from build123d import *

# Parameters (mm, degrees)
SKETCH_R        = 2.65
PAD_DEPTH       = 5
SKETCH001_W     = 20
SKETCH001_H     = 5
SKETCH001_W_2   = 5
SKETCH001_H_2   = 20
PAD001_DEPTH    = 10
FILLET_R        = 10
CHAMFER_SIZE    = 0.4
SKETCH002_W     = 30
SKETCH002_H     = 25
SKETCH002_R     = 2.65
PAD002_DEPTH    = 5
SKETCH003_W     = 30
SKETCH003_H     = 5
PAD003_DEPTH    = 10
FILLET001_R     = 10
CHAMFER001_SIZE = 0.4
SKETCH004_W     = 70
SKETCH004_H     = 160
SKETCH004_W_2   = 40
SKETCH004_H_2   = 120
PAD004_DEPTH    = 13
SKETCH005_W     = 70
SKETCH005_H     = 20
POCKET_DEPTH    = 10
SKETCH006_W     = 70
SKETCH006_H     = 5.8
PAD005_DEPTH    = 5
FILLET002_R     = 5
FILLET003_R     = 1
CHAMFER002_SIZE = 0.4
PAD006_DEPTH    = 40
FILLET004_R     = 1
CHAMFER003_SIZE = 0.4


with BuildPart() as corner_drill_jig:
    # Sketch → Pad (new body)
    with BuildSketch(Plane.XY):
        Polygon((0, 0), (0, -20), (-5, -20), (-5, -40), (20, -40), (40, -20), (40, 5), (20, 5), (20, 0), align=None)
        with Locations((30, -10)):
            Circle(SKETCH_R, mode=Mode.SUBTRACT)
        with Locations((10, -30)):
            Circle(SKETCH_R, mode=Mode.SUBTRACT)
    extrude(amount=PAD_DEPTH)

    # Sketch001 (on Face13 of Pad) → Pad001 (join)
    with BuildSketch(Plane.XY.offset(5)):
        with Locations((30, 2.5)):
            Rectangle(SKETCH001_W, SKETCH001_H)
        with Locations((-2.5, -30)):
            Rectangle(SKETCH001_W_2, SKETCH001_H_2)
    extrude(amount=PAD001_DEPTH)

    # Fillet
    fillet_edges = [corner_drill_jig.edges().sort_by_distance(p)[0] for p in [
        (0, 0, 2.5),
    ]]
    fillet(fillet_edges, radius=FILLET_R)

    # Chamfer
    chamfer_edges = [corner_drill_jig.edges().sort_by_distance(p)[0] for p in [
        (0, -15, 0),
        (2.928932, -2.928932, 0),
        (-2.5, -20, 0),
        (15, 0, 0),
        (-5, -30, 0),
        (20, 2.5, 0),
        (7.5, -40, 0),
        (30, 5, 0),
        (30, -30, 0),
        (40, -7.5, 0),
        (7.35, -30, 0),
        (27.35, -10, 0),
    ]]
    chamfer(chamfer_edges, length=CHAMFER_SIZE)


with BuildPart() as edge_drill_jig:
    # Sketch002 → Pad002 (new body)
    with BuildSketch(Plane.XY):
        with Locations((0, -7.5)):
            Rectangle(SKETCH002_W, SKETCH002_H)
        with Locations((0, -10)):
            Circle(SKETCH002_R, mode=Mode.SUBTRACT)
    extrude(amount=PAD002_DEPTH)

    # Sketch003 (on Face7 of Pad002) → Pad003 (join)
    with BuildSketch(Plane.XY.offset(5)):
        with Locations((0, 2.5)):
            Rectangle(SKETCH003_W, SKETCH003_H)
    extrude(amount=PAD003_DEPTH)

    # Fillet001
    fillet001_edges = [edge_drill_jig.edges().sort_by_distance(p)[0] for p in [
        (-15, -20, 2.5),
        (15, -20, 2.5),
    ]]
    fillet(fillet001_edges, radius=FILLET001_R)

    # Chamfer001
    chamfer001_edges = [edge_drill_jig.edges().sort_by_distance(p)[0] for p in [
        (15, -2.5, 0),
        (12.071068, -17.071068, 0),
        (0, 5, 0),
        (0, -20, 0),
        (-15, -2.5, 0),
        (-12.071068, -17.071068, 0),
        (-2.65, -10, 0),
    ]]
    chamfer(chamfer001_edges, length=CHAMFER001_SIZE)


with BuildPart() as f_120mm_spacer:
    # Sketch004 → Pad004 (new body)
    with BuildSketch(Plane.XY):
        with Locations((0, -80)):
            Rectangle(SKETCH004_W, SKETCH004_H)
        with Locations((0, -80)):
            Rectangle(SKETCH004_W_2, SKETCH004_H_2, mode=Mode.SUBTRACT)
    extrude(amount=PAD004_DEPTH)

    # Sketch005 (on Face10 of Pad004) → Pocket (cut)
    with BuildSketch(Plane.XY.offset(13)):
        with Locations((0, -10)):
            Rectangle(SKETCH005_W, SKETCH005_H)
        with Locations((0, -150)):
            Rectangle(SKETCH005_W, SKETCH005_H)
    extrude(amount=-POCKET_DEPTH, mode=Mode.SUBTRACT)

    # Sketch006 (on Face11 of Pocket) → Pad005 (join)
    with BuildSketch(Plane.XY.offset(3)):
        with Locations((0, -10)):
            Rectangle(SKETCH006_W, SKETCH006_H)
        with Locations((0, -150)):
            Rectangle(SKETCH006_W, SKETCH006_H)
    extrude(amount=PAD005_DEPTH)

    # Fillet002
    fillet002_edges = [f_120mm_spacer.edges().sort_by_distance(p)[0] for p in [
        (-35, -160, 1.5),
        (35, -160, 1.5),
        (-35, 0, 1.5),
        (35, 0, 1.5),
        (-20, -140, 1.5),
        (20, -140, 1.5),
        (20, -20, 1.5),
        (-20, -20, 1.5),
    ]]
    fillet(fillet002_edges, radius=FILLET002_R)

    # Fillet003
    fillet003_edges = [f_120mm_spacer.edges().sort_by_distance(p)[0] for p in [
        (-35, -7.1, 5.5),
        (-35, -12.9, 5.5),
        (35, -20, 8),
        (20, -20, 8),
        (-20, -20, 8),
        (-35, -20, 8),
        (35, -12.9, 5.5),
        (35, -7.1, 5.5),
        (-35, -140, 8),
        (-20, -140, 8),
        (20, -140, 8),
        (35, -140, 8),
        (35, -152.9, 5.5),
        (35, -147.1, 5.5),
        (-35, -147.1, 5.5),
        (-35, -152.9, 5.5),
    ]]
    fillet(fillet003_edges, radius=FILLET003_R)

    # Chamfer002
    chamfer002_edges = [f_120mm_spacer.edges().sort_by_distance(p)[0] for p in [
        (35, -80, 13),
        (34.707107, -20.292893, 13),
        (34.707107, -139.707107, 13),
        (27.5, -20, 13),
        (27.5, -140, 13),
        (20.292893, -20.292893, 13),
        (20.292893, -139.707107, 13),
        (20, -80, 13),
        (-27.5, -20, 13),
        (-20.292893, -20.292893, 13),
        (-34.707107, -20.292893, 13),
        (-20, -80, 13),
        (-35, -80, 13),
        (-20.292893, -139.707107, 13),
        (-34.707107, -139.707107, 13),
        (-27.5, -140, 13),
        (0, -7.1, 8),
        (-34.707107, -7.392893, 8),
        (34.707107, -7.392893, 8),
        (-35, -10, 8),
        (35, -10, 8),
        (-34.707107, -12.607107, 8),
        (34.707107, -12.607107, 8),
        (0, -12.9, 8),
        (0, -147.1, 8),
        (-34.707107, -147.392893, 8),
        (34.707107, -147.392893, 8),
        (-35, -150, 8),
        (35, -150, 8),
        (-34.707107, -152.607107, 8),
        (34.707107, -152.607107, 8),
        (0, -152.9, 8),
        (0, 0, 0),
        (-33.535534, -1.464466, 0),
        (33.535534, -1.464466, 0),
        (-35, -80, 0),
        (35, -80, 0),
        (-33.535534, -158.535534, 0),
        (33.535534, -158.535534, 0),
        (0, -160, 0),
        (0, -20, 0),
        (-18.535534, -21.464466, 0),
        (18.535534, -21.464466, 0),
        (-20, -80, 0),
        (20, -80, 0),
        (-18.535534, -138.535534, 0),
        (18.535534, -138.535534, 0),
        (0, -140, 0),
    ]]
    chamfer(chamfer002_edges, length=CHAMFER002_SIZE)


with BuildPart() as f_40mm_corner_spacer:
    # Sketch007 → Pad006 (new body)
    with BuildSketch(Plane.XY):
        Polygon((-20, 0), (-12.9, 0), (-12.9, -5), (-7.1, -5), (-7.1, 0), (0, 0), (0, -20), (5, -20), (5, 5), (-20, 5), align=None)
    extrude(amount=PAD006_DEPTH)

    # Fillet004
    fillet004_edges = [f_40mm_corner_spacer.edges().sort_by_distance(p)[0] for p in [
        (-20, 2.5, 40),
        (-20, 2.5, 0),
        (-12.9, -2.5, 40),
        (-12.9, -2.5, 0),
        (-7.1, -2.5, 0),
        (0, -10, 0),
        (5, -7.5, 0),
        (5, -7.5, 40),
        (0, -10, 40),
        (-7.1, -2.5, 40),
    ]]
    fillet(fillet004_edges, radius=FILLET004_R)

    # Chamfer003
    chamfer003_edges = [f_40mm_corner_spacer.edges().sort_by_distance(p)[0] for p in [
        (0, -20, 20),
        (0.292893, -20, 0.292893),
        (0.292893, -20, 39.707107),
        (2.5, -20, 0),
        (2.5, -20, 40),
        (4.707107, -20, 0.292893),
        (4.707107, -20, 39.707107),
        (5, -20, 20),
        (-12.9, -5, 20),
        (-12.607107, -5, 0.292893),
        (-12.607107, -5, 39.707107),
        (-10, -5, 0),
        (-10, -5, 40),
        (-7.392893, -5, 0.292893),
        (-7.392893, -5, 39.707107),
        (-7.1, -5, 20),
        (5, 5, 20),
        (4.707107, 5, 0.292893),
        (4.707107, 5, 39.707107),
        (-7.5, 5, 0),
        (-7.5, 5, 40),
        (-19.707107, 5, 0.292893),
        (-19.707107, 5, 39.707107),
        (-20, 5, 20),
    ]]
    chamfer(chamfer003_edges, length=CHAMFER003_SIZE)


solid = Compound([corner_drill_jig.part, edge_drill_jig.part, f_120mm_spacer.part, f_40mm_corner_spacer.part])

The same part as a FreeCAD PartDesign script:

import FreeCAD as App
import Part
import Sketcher
from FreeCAD import Vector


def edges_at(feature, points):
    """Names of the edges that pass closest to the given points."""
    edges = feature.Shape.Edges
    near = lambda p: min(range(len(edges)), key=lambda i: edges[i].distToShape(Part.Vertex(*p))[0])
    return sorted({f"Edge{near(p) + 1}" for p in points})


def add_polygon(sketch, points):
    """Adds a closed chain of lines whose ends are joined by coincident constraints."""
    first, n = sketch.GeometryCount, len(points)
    for a, b in zip(points, points[1:] + points[:1]):
        sketch.addGeometry(Part.LineSegment(App.Vector(*a, 0), App.Vector(*b, 0)), False)
    for i in range(n):
        sketch.addConstraint(Sketcher.Constraint("Coincident", first + i, 2, first + (i + 1) % n, 1))

doc = App.newDocument("Part")
body = doc.addObject("PartDesign::Body", "Body")

# Sketch on XY plane
sketch1 = body.newObject("Sketcher::SketchObject", "Sketch")
sketch1.AttachmentSupport = (doc.getObject("XY_Plane"), [""])
sketch1.MapMode = "FlatFace"
add_polygon(sketch1, [(0, 0), (0, -20), (-5, -20), (-5, -40), (20, -40), (40, -20), (40, 5), (20, 5), (20, 0)])  # lines 0-8
sketch1.addGeometry(Part.Circle(Vector(10, -30, 0), Vector(0, 0, 1), 2.65), False)  # 9
sketch1.addGeometry(Part.Circle(Vector(30, -10, 0), Vector(0, 0, 1), 2.65), False)  # 10
sketch1.addConstraint(Sketcher.Constraint("Vertical", 0))
sketch1.addConstraint(Sketcher.Constraint("Horizontal", 1))
sketch1.addConstraint(Sketcher.Constraint("Vertical", 2))
sketch1.addConstraint(Sketcher.Constraint("Horizontal", 3))
sketch1.addConstraint(Sketcher.Constraint("Vertical", 5))
sketch1.addConstraint(Sketcher.Constraint("Horizontal", 6))
sketch1.addConstraint(Sketcher.Constraint("Vertical", 7))
sketch1.addConstraint(Sketcher.Constraint("Horizontal", 8))
sketch1.addConstraint(Sketcher.Constraint("Coincident", 8, 2, -1, 1))
sketch1.addConstraint(Sketcher.Constraint("Equal", 9, 10))
sketch1.addConstraint(Sketcher.Constraint("Horizontal", 1, 2, 4, 2))
sketch1.addConstraint(Sketcher.Constraint("Vertical", 3, 2, 6, 2))
sketch1.addConstraint(Sketcher.Constraint("Equal", 6, 8))
sketch1.addConstraint(Sketcher.Constraint("Equal", 8, 0))
sketch1.addConstraint(Sketcher.Constraint("Equal", 0, 2))
sketch1.addConstraint(Sketcher.Constraint("Equal", 3, 5))
sketch1.addConstraint(Sketcher.Constraint("Diameter", 9, 5.3))
sketch1.addConstraint(Sketcher.Constraint("DistanceX", 1, 2, 1, 1, 5.0))
sketch1.addConstraint(Sketcher.Constraint("DistanceX", 3, 1, 3, 2, 25.0))
sketch1.addConstraint(Sketcher.Constraint("DistanceX", -1, 1, 9, 3, 10.0))
sketch1.addConstraint(Sketcher.Constraint("DistanceY", 9, 3, -1, 1, 30.0))
sketch1.addConstraint(Sketcher.Constraint("DistanceX", -1, 1, 10, 3, 30.0))
sketch1.addConstraint(Sketcher.Constraint("DistanceY", 10, 3, -1, 1, 10.0))
pad1 = body.newObject("PartDesign::Pad", "Pad")
pad1.Profile = sketch1
pad1.Length = 5

# Sketch on XY plane
sketch2 = body.newObject("Sketcher::SketchObject", "Sketch001")
sketch2.AttachmentSupport = (doc.getObject("XY_Plane"), [""])
sketch2.MapMode = "FlatFace"
sketch2.AttachmentOffset = App.Placement(Vector(0, 0, 5), App.Rotation())
add_polygon(sketch2, [(20, 5), (20, 0), (40, 0), (40, 5)])  # lines 0-3
add_polygon(sketch2, [(-5, -20), (-5, -40), (0, -40), (0, -20)])  # lines 4-7
sketch2.addConstraint(Sketcher.Constraint("Vertical", 0))
sketch2.addConstraint(Sketcher.Constraint("Horizontal", 1))
sketch2.addConstraint(Sketcher.Constraint("Vertical", 2))
sketch2.addConstraint(Sketcher.Constraint("Horizontal", 3))
sketch2.addConstraint(Sketcher.Constraint("Vertical", 4))
sketch2.addConstraint(Sketcher.Constraint("Horizontal", 5))
sketch2.addConstraint(Sketcher.Constraint("Vertical", 6))
sketch2.addConstraint(Sketcher.Constraint("Horizontal", 7))
sketch2.addConstraint(Sketcher.Constraint("PointOnObject", 0, 2, -1))
sketch2.addConstraint(Sketcher.Constraint("PointOnObject", 5, 2, -2))
sketch2.addConstraint(Sketcher.Constraint("Equal", 7, 0))
sketch2.addConstraint(Sketcher.Constraint("Equal", 3, 4))
sketch2.addConstraint(Sketcher.Constraint("DistanceX", 1, 1, 1, 2, 20.0))
sketch2.addConstraint(Sketcher.Constraint("DistanceX", 5, 1, 5, 2, 5.0))
sketch2.addConstraint(Sketcher.Constraint("DistanceX", -1, 1, 0, 2, 20.0))
sketch2.addConstraint(Sketcher.Constraint("DistanceY", 4, 2, -1, 1, 40.0))
pad2 = body.newObject("PartDesign::Pad", "Pad001")
pad2.Profile = sketch2
pad2.Length = 10
doc.recompute()

fillet = body.newObject("PartDesign::Fillet", "Fillet")
fillet.Base = (pad2, edges_at(pad2, [(0, 0, 2.5)]))
fillet.Radius = 10
doc.recompute()

chamfer = body.newObject("PartDesign::Chamfer", "Chamfer")
chamfer.Base = (fillet, edges_at(fillet, [
    (0, -15, 0),
    (2.929, -2.929, 0),
    (-2.5, -20, 0),
    (15, 0, 0),
    (-5, -30, 0),
    (20, 2.5, 0),
    (7.5, -40, 0),
    (30, 5, 0),
    (30, -30, 0),
    (40, -7.5, 0),
    (7.35, -30, 0),
    (27.35, -10, 0),
]))
chamfer.Size = 0.4
body2 = doc.addObject("PartDesign::Body", "Body001")

# Sketch on XY plane
sketch3 = body2.newObject("Sketcher::SketchObject", "Sketch002")
sketch3.AttachmentSupport = (doc.getObject("XY_Plane001"), [""])
sketch3.MapMode = "FlatFace"
add_polygon(sketch3, [(-15, 5), (-15, -20), (15, -20), (15, 5)])  # lines 0-3
sketch3.addGeometry(Part.Circle(Vector(0, -10, 0), Vector(0, 0, 1), 2.65), False)  # 4
sketch3.addConstraint(Sketcher.Constraint("Vertical", 0))
sketch3.addConstraint(Sketcher.Constraint("Horizontal", 1))
sketch3.addConstraint(Sketcher.Constraint("Vertical", 2))
sketch3.addConstraint(Sketcher.Constraint("Horizontal", 3))
sketch3.addConstraint(Sketcher.Constraint("PointOnObject", 4, 3, -2))
sketch3.addConstraint(Sketcher.Constraint("Diameter", 4, 5.3))
sketch3.addConstraint(Sketcher.Constraint("DistanceX", 1, 1, 1, 2, 30.0))
sketch3.addConstraint(Sketcher.Constraint("DistanceY", 0, 2, 0, 1, 25.0))
sketch3.addConstraint(Sketcher.Constraint("DistanceY", 4, 3, -1, 1, 10.0))
sketch3.addConstraint(Sketcher.Constraint("DistanceX", 0, 2, -1, 1, 15.0))
sketch3.addConstraint(Sketcher.Constraint("DistanceY", 0, 2, -1, 1, 20.0))
pad3 = body2.newObject("PartDesign::Pad", "Pad002")
pad3.Profile = sketch3
pad3.Length = 5

# Sketch on XY plane
sketch4 = body2.newObject("Sketcher::SketchObject", "Sketch003")
sketch4.AttachmentSupport = (doc.getObject("XY_Plane001"), [""])
sketch4.MapMode = "FlatFace"
sketch4.AttachmentOffset = App.Placement(Vector(0, 0, 5), App.Rotation())
add_polygon(sketch4, [(-15, 5), (-15, 0), (15, 0), (15, 5)])  # lines 0-3
sketch4.addConstraint(Sketcher.Constraint("Vertical", 0))
sketch4.addConstraint(Sketcher.Constraint("Horizontal", 1))
sketch4.addConstraint(Sketcher.Constraint("Vertical", 2))
sketch4.addConstraint(Sketcher.Constraint("Horizontal", 3))
sketch4.addConstraint(Sketcher.Constraint("Symmetric", 0, 2, 1, 2, -1, 1))
sketch4.addConstraint(Sketcher.Constraint("DistanceX", 1, 1, 1, 2, 30.0))
sketch4.addConstraint(Sketcher.Constraint("DistanceY", 0, 2, 0, 1, 5.0))
pad4 = body2.newObject("PartDesign::Pad", "Pad003")
pad4.Profile = sketch4
pad4.Length = 10
doc.recompute()

fillet2 = body2.newObject("PartDesign::Fillet", "Fillet001")
fillet2.Base = (pad4, edges_at(pad4, [(-15, -20, 2.5), (15, -20, 2.5)]))
fillet2.Radius = 10
doc.recompute()

chamfer2 = body2.newObject("PartDesign::Chamfer", "Chamfer001")
chamfer2.Base = (fillet2, edges_at(fillet2, [
    (15, -2.5, 0),
    (12.071, -17.071, 0),
    (0, 5, 0),
    (0, -20, 0),
    (-15, -2.5, 0),
    (-12.071, -17.071, 0),
    (-2.65, -10, 0),
]))
chamfer2.Size = 0.4
body3 = doc.addObject("PartDesign::Body", "Body002")

# Sketch on XY plane
sketch5 = body3.newObject("Sketcher::SketchObject", "Sketch004")
sketch5.AttachmentSupport = (doc.getObject("XY_Plane002"), [""])
sketch5.MapMode = "FlatFace"
add_polygon(sketch5, [(-35, 0), (-35, -160), (35, -160), (35, 0)])  # lines 0-3
add_polygon(sketch5, [(20, -140), (-20, -140), (-20, -20), (20, -20)])  # lines 4-7
sketch5.addConstraint(Sketcher.Constraint("Vertical", 0))
sketch5.addConstraint(Sketcher.Constraint("Horizontal", 1))
sketch5.addConstraint(Sketcher.Constraint("Vertical", 2))
sketch5.addConstraint(Sketcher.Constraint("Horizontal", 3))
sketch5.addConstraint(Sketcher.Constraint("Horizontal", 4))
sketch5.addConstraint(Sketcher.Constraint("Vertical", 5))
sketch5.addConstraint(Sketcher.Constraint("Horizontal", 6))
sketch5.addConstraint(Sketcher.Constraint("Vertical", 7))
sketch5.addConstraint(Sketcher.Constraint("Symmetric", 2, 2, 3, 2, -1, 1))
sketch5.addConstraint(Sketcher.Constraint("DistanceX", 1, 1, 1, 2, 70.0))
sketch5.addConstraint(Sketcher.Constraint("DistanceX", 4, 2, 4, 1, 40.0))
sketch5.addConstraint(Sketcher.Constraint("DistanceY", 0, 2, 0, 1, 160.0))
sketch5.addConstraint(Sketcher.Constraint("DistanceY", 5, 1, 5, 2, 120.0))
sketch5.addConstraint(Sketcher.Constraint("DistanceX", 4, 2, -1, 1, 20.0))
sketch5.addConstraint(Sketcher.Constraint("DistanceY", 4, 2, -1, 1, 140.0))
pad5 = body3.newObject("PartDesign::Pad", "Pad004")
pad5.Profile = sketch5
pad5.Length = 13

# Sketch on XY plane
sketch6 = body3.newObject("Sketcher::SketchObject", "Sketch005")
sketch6.AttachmentSupport = (doc.getObject("XY_Plane002"), [""])
sketch6.MapMode = "FlatFace"
sketch6.AttachmentOffset = App.Placement(Vector(0, 0, 13), App.Rotation())
add_polygon(sketch6, [(-35, 0), (-35, -20), (35, -20), (35, 0)])  # lines 0-3
add_polygon(sketch6, [(-35, -140), (-35, -160), (35, -160), (35, -140)])  # lines 4-7
sketch6.addConstraint(Sketcher.Constraint("Vertical", 0))
sketch6.addConstraint(Sketcher.Constraint("Horizontal", 1))
sketch6.addConstraint(Sketcher.Constraint("Vertical", 2))
sketch6.addConstraint(Sketcher.Constraint("Horizontal", 3))
sketch6.addConstraint(Sketcher.Constraint("Vertical", 4))
sketch6.addConstraint(Sketcher.Constraint("Horizontal", 5))
sketch6.addConstraint(Sketcher.Constraint("Vertical", 6))
sketch6.addConstraint(Sketcher.Constraint("Horizontal", 7))
sketch6.addConstraint(Sketcher.Constraint("Symmetric", 2, 2, 3, 2, -1, 1))
sketch6.addConstraint(Sketcher.Constraint("Vertical", 3, 2, 4, 2))
sketch6.addConstraint(Sketcher.Constraint("Vertical", 2, 2, 5, 2))
sketch6.addConstraint(Sketcher.Constraint("Equal", 2, 4))
sketch6.addConstraint(Sketcher.Constraint("DistanceX", 1, 1, 1, 2, 70.0))
sketch6.addConstraint(Sketcher.Constraint("DistanceY", 0, 2, 0, 1, 20.0))
sketch6.addConstraint(Sketcher.Constraint("DistanceY", 4, 2, -1, 1, 160.0))
pocket1 = body3.newObject("PartDesign::Pocket", "Pocket")
pocket1.Profile = sketch6
pocket1.Length = 10

# Sketch on XY plane
sketch7 = body3.newObject("Sketcher::SketchObject", "Sketch006")
sketch7.AttachmentSupport = (doc.getObject("XY_Plane002"), [""])
sketch7.MapMode = "FlatFace"
sketch7.AttachmentOffset = App.Placement(Vector(0, 0, 3), App.Rotation())
add_polygon(sketch7, [(-35, -7.1), (-35, -12.9), (35, -12.9), (35, -7.1)])  # lines 0-3
add_polygon(sketch7, [(-35, -147.1), (-35, -152.9), (35, -152.9), (35, -147.1)])  # lines 4-7
sketch7.addConstraint(Sketcher.Constraint("Vertical", 0))
sketch7.addConstraint(Sketcher.Constraint("Horizontal", 1))
sketch7.addConstraint(Sketcher.Constraint("Vertical", 2))
sketch7.addConstraint(Sketcher.Constraint("Horizontal", 3))
sketch7.addConstraint(Sketcher.Constraint("Vertical", 4))
sketch7.addConstraint(Sketcher.Constraint("Horizontal", 5))
sketch7.addConstraint(Sketcher.Constraint("Vertical", 6))
sketch7.addConstraint(Sketcher.Constraint("Horizontal", 7))
sketch7.addConstraint(Sketcher.Constraint("Vertical", 3, 2, 4, 2))
sketch7.addConstraint(Sketcher.Constraint("Vertical", 2, 2, 5, 2))
sketch7.addConstraint(Sketcher.Constraint("Equal", 2, 4))
sketch7.addConstraint(Sketcher.Constraint("DistanceX", 1, 1, 1, 2, 70.0))
sketch7.addConstraint(Sketcher.Constraint("DistanceY", 0, 2, 0, 1, 5.8))
sketch7.addConstraint(Sketcher.Constraint("DistanceX", 0, 2, -1, 1, 35.0))
sketch7.addConstraint(Sketcher.Constraint("DistanceY", 4, 2, 0, 2, 140.0))
sketch7.addConstraint(Sketcher.Constraint("DistanceY", 0, 2, -1, 1, 12.9))
pad6 = body3.newObject("PartDesign::Pad", "Pad005")
pad6.Profile = sketch7
pad6.Length = 5
doc.recompute()

fillet3 = body3.newObject("PartDesign::Fillet", "Fillet002")
fillet3.Base = (pad6, edges_at(pad6, [
    (-35, -160, 1.5),
    (35, -160, 1.5),
    (-35, 0, 1.5),
    (35, 0, 1.5),
    (-20, -140, 1.5),
    (20, -140, 1.5),
    (20, -20, 1.5),
    (-20, -20, 1.5),
]))
fillet3.Radius = 5
doc.recompute()

fillet4 = body3.newObject("PartDesign::Fillet", "Fillet003")
fillet4.Base = (fillet3, edges_at(fillet3, [
    (-35, -7.1, 5.5),
    (-35, -12.9, 5.5),
    (35, -20, 8),
    (20, -20, 8),
    (-20, -20, 8),
    (-35, -20, 8),
    (35, -12.9, 5.5),
    (35, -7.1, 5.5),
    (-35, -140, 8),
    (-20, -140, 8),
    (20, -140, 8),
    (35, -140, 8),
    (35, -152.9, 5.5),
    (35, -147.1, 5.5),
    (-35, -147.1, 5.5),
    (-35, -152.9, 5.5),
]))
fillet4.Radius = 1
doc.recompute()

chamfer3 = body3.newObject("PartDesign::Chamfer", "Chamfer002")
chamfer3.Base = (fillet4, edges_at(fillet4, [
    (35, -80, 13),
    (34.707, -20.293, 13),
    (34.707, -139.707, 13),
    (27.5, -20, 13),
    (27.5, -140, 13),
    (20.293, -20.293, 13),
    (20.293, -139.707, 13),
    (20, -80, 13),
    (-27.5, -20, 13),
    (-20.293, -20.293, 13),
    (-34.707, -20.293, 13),
    (-20, -80, 13),
    (-35, -80, 13),
    (-20.293, -139.707, 13),
    (-34.707, -139.707, 13),
    (-27.5, -140, 13),
    (0, -7.1, 8),
    (-34.707, -7.393, 8),
    (34.707, -7.393, 8),
    (-35, -10, 8),
    (35, -10, 8),
    (-34.707, -12.607, 8),
    (34.707, -12.607, 8),
    (0, -12.9, 8),
    (0, -147.1, 8),
    (-34.707, -147.393, 8),
    (34.707, -147.393, 8),
    (-35, -150, 8),
    (35, -150, 8),
    (-34.707, -152.607, 8),
    (34.707, -152.607, 8),
    (0, -152.9, 8),
    (0, 0, 0),
    (-33.536, -1.464, 0),
    (33.536, -1.464, 0),
    (-35, -80, 0),
    (35, -80, 0),
    (-33.536, -158.536, 0),
    (33.536, -158.536, 0),
    (0, -160, 0),
    (0, -20, 0),
    (-18.536, -21.464, 0),
    (18.536, -21.464, 0),
    (-20, -80, 0),
    (20, -80, 0),
    (-18.536, -138.536, 0),
    (18.536, -138.536, 0),
    (0, -140, 0),
]))
chamfer3.Size = 0.4
body4 = doc.addObject("PartDesign::Body", "Body003")

# Sketch on XY plane
sketch8 = body4.newObject("Sketcher::SketchObject", "Sketch007")
sketch8.AttachmentSupport = (doc.getObject("XY_Plane003"), [""])
sketch8.MapMode = "FlatFace"
add_polygon(sketch8, [(-20, 0), (-12.9, 0), (-12.9, -5), (-7.1, -5), (-7.1, 0), (0, 0), (0, -20), (5, -20), (5, 5), (-20, 5)])  # lines 0-9
sketch8.addConstraint(Sketcher.Constraint("Horizontal", 0))
sketch8.addConstraint(Sketcher.Constraint("Vertical", 1))
sketch8.addConstraint(Sketcher.Constraint("Horizontal", 2))
sketch8.addConstraint(Sketcher.Constraint("Vertical", 3))
sketch8.addConstraint(Sketcher.Constraint("Horizontal", 4))
sketch8.addConstraint(Sketcher.Constraint("Vertical", 5))
sketch8.addConstraint(Sketcher.Constraint("Horizontal", 6))
sketch8.addConstraint(Sketcher.Constraint("Vertical", 7))
sketch8.addConstraint(Sketcher.Constraint("Horizontal", 8))
sketch8.addConstraint(Sketcher.Constraint("Vertical", 9))
sketch8.addConstraint(Sketcher.Constraint("Coincident", 4, 2, -1, 1))
sketch8.addConstraint(Sketcher.Constraint("PointOnObject", 0, 2, -1))
sketch8.addConstraint(Sketcher.Constraint("Equal", 0, 4))
sketch8.addConstraint(Sketcher.Constraint("Equal", 6, 1))
sketch8.addConstraint(Sketcher.Constraint("Equal", 8, 7))
sketch8.addConstraint(Sketcher.Constraint("Equal", 3, 9))
sketch8.addConstraint(Sketcher.Constraint("DistanceX", 6, 1, 6, 2, 5.0))
sketch8.addConstraint(Sketcher.Constraint("DistanceX", 8, 2, 8, 1, 25.0))
sketch8.addConstraint(Sketcher.Constraint("DistanceX", 0, 1, 0, 2, 7.1))
pad7 = body4.newObject("PartDesign::Pad", "Pad006")
pad7.Profile = sketch8
pad7.Length = 40
doc.recompute()

fillet5 = body4.newObject("PartDesign::Fillet", "Fillet004")
fillet5.Base = (pad7, edges_at(pad7, [
    (-20, 2.5, 40),
    (-20, 2.5, 0),
    (-12.9, -2.5, 40),
    (-12.9, -2.5, 0),
    (-7.1, -2.5, 0),
    (0, -10, 0),
    (5, -7.5, 0),
    (5, -7.5, 40),
    (0, -10, 40),
    (-7.1, -2.5, 40),
]))
fillet5.Radius = 1
doc.recompute()

chamfer4 = body4.newObject("PartDesign::Chamfer", "Chamfer003")
chamfer4.Base = (fillet5, edges_at(fillet5, [
    (0, -20, 20),
    (0.293, -20, 0.293),
    (0.293, -20, 39.707),
    (2.5, -20, 0),
    (2.5, -20, 40),
    (4.707, -20, 0.293),
    (4.707, -20, 39.707),
    (5, -20, 20),
    (-12.9, -5, 20),
    (-12.607, -5, 0.293),
    (-12.607, -5, 39.707),
    (-10, -5, 0),
    (-10, -5, 40),
    (-7.393, -5, 0.293),
    (-7.393, -5, 39.707),
    (-7.1, -5, 20),
    (5, 5, 20),
    (4.707, 5, 0.293),
    (4.707, 5, 39.707),
    (-7.5, 5, 0),
    (-7.5, 5, 40),
    (-19.707, 5, 0.293),
    (-19.707, 5, 39.707),
    (-20, 5, 20),
]))
chamfer4.Size = 0.4

doc.recompute()
